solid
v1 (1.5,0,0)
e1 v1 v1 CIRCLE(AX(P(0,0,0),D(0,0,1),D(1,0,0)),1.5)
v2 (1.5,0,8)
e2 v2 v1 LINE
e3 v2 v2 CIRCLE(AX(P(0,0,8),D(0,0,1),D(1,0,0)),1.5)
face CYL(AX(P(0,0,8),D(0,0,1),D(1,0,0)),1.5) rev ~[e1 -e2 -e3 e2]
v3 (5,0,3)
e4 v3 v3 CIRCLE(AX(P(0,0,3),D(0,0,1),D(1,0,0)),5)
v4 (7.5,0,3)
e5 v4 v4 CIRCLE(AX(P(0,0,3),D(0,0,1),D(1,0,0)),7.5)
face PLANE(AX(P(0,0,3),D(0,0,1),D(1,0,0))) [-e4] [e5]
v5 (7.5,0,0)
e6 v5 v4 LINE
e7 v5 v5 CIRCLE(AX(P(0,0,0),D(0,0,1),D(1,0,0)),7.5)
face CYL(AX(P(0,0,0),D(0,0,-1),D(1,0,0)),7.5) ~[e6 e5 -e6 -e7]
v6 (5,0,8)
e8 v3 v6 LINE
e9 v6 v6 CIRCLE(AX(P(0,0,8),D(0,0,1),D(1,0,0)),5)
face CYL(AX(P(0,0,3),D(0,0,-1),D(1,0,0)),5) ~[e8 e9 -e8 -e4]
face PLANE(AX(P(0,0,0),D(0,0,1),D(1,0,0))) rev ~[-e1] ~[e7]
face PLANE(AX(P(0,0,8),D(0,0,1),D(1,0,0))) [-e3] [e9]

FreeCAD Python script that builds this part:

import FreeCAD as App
import Part
import Sketcher
from FreeCAD import Vector
Q = App.Units.Quantity

doc = App.newDocument("Part")
body = doc.addObject("PartDesign::Body", "Body")

# Sketch on XY plane
sketch1 = body.newObject("Sketcher::SketchObject", "Sketch")
sketch1.AttachmentSupport = (doc.getObject("XY_Plane"), [""])
sketch1.MapMode = "FlatFace"
sketch1.addGeometry(Part.Circle(Vector(0, 0, 0), Vector(0, 0, 1), 7.5), False)
sketch1.addConstraint([
    Sketcher.Constraint("Coincident", 0, 3, -1, 1),
    Sketcher.Constraint("Diameter", 0, Q("15 mm")),
])
pad1 = body.newObject("PartDesign::Pad", "Pad")
pad1.Profile = sketch1
pad1.Length = 3

# Sketch on XY plane
sketch2 = body.newObject("Sketcher::SketchObject", "Sketch001")
sketch2.AttachmentSupport = (doc.getObject("XY_Plane"), [""])
sketch2.MapMode = "FlatFace"
sketch2.AttachmentOffset = App.Placement(Vector(0, 0, 3), App.Rotation())
sketch2.addGeometry(Part.Circle(Vector(0, 0, 0), Vector(0, 0, 1), 5), False)
sketch2.addConstraint([
    Sketcher.Constraint("Coincident", 0, 3, -1, 1),
    Sketcher.Constraint("Diameter", 0, Q("10 mm")),
])
pad2 = body.newObject("PartDesign::Pad", "Pad001")
pad2.Profile = sketch2
pad2.Length = 5

# Sketch on XY plane
sketch3 = body.newObject("Sketcher::SketchObject", "Sketch002")
sketch3.AttachmentSupport = (doc.getObject("XY_Plane"), [""])
sketch3.MapMode = "FlatFace"
sketch3.AttachmentOffset = App.Placement(Vector(0, 0, 8), App.Rotation())
sketch3.addGeometry(Part.Circle(Vector(0, 0, 0), Vector(0, 0, 1), 1.5), False)
sketch3.addConstraint([
    Sketcher.Constraint("Coincident", 0, 3, -1, 1),
    Sketcher.Constraint("Diameter", 0, Q("3 mm")),
])
pocket1 = body.newObject("PartDesign::Pocket", "Pocket")
pocket1.Profile = sketch3
pocket1.Length = 10

doc.recompute()
